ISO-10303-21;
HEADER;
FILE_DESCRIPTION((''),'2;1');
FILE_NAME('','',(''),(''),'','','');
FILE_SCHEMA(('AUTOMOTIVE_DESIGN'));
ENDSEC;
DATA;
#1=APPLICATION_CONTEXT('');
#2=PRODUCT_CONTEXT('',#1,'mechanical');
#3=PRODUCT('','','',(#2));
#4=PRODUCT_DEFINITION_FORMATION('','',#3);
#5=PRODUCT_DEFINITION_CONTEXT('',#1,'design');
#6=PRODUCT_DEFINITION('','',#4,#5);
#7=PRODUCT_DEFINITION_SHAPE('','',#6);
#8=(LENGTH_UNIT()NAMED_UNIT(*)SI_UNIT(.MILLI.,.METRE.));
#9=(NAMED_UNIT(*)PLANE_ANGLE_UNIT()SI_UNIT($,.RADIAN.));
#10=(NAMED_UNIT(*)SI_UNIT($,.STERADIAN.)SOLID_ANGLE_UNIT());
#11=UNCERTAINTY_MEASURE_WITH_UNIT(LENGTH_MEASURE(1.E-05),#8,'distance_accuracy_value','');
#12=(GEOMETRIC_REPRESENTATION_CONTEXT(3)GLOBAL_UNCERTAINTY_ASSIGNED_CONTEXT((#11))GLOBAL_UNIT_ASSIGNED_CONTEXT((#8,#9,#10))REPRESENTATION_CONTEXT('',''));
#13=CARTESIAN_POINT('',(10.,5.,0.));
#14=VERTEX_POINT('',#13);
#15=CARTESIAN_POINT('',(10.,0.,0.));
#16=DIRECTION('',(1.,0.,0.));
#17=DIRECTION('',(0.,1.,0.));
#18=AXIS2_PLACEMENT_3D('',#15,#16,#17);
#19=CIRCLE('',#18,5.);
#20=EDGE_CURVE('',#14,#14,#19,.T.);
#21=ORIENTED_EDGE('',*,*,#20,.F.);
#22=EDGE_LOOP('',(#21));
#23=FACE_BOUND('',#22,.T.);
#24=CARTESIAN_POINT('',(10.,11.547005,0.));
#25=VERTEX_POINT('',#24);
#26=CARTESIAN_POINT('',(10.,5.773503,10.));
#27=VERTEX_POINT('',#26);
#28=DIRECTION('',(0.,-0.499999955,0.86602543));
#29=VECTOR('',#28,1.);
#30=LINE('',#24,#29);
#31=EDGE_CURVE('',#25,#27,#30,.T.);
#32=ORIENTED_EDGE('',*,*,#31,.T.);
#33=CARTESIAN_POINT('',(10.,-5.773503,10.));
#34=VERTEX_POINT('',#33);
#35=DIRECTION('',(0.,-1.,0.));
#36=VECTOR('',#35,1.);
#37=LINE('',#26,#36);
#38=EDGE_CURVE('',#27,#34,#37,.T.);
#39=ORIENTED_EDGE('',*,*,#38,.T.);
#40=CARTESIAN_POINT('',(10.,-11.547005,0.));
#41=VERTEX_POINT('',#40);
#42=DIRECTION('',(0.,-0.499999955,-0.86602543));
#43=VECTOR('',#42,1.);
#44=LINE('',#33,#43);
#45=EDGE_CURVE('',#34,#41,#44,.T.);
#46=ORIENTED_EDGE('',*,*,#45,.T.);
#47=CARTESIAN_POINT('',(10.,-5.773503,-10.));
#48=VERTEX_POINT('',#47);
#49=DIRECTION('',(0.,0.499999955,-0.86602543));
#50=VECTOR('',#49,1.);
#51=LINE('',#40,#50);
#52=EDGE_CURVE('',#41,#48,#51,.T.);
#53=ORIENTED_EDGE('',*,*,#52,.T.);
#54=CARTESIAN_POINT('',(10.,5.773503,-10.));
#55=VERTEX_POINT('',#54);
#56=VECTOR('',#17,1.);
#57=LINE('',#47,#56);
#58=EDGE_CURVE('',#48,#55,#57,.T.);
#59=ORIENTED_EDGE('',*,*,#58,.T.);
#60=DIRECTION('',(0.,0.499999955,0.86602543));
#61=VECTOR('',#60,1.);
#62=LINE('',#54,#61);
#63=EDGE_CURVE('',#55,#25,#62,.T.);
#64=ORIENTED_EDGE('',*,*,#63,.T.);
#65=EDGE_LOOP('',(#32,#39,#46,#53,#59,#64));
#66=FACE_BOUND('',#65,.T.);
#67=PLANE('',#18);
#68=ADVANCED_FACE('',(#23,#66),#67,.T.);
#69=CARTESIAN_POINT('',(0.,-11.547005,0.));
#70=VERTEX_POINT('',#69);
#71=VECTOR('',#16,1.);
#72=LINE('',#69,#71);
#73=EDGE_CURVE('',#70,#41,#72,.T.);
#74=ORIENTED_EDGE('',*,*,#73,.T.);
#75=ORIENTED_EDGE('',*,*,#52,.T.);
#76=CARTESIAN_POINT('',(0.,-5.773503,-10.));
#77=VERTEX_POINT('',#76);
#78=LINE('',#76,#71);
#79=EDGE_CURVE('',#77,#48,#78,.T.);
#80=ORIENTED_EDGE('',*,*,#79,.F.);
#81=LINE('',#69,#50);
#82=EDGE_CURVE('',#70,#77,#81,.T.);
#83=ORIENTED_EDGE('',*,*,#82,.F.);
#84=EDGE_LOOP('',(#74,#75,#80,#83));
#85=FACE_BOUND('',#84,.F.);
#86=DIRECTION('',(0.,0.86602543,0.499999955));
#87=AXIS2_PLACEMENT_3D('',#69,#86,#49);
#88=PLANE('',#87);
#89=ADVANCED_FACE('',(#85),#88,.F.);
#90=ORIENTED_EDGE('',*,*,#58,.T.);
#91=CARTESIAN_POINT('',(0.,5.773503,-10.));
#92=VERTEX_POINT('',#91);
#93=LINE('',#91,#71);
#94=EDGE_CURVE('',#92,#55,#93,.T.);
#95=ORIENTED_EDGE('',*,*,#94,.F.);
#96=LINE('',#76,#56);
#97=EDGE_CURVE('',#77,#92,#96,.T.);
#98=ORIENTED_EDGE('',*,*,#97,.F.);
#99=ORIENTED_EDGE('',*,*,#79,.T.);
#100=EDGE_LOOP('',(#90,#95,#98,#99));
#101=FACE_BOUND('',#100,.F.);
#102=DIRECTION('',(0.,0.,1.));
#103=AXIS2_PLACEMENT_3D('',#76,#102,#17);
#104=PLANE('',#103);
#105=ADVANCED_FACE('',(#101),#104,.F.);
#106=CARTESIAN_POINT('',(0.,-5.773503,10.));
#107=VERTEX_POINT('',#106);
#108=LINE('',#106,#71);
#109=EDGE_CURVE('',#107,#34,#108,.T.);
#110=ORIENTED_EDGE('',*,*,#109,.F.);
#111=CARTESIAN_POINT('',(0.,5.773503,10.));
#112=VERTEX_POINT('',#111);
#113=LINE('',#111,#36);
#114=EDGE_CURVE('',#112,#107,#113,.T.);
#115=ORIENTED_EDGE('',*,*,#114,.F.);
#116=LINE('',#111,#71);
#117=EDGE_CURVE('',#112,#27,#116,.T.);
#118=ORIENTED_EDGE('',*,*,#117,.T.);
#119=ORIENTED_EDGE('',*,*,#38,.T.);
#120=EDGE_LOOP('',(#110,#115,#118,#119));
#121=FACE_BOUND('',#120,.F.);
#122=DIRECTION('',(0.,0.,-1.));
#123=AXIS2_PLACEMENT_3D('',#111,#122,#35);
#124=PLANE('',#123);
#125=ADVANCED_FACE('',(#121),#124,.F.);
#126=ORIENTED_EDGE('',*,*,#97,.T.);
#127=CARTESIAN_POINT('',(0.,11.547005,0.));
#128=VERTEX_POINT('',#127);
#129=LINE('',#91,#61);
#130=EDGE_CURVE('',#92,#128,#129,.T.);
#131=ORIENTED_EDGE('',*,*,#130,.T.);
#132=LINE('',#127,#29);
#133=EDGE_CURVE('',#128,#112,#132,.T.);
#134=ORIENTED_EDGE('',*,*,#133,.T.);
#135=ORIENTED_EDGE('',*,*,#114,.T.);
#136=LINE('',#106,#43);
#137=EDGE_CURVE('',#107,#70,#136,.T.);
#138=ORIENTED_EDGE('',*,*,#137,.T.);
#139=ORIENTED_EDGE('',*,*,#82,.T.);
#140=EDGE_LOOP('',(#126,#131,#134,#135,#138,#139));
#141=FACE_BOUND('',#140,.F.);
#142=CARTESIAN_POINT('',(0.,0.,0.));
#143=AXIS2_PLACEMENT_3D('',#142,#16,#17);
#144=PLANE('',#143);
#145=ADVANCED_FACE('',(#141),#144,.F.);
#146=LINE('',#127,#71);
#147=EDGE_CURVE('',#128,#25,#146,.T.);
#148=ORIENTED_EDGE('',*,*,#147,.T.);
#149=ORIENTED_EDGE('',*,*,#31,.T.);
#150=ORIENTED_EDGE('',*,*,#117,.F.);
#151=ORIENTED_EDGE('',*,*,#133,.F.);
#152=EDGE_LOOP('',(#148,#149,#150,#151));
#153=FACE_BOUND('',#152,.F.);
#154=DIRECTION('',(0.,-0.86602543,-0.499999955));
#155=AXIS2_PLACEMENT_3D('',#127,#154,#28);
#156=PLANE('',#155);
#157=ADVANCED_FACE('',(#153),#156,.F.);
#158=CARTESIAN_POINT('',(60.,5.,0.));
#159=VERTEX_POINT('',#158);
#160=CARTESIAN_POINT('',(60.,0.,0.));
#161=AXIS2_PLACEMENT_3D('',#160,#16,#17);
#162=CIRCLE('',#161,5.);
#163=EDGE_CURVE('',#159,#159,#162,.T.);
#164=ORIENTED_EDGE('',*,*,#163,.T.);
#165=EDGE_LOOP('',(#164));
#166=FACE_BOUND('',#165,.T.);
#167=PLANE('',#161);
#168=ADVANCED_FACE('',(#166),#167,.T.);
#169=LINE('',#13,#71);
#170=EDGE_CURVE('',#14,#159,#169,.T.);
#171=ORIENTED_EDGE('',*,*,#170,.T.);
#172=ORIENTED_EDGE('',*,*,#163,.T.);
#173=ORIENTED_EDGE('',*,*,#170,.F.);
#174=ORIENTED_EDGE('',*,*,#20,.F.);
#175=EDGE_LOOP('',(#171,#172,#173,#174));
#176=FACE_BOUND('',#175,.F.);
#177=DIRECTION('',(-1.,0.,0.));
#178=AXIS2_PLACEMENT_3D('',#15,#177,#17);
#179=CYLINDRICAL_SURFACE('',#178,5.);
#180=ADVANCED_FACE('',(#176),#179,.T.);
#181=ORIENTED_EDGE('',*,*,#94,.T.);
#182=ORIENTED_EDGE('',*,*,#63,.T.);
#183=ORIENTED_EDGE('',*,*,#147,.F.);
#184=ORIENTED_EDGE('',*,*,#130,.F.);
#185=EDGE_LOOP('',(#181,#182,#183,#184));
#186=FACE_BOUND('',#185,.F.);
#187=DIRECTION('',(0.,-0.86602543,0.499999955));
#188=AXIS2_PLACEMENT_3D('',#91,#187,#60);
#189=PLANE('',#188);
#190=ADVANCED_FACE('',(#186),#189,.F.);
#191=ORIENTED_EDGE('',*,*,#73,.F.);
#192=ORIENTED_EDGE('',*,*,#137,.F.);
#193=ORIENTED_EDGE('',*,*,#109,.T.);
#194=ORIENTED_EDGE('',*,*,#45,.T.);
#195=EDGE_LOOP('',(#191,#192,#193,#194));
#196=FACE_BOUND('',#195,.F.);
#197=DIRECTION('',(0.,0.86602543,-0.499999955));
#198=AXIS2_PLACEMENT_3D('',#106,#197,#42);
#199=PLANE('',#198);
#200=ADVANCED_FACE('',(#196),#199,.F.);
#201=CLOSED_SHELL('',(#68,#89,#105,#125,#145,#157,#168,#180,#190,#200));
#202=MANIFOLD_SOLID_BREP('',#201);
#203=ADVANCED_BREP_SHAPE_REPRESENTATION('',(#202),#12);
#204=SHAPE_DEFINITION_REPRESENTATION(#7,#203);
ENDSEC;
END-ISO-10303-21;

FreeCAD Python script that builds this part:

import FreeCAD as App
import Part
import Sketcher

V = App.Vector
Q = App.Units.Quantity


def add_polygon(sketch, points):
    """Adds a closed chain of lines whose ends are joined by coincident constraints."""
    first, n = sketch.GeometryCount, len(points)
    for a, b in zip(points, points[1:] + points[:1]):
        sketch.addGeometry(Part.LineSegment(App.Vector(*a, 0), App.Vector(*b, 0)), False)
    for i in range(n):
        sketch.addConstraint(Sketcher.Constraint("Coincident", first + i, 2, first + (i + 1) % n, 1))

doc = App.newDocument("Part")
body = doc.addObject("PartDesign::Body", "Body")

# Sketch on YZ plane
sketch1 = doc.addObject("Sketcher::SketchObject", "Sketch")
body.addObject(sketch1)
sketch1.AttachmentSupport = (doc.YZ_Plane, [""])
sketch1.MapMode = "FlatFace"
add_polygon(sketch1, [(6, 10), (-6, 10), (-12, 0), (-6, -10), (6, -10), (12, 0)])  # lines 0-5
sketch1.addConstraint([
    Sketcher.Constraint("Horizontal", 0),
    Sketcher.Constraint("Horizontal", 3),
    Sketcher.Constraint("Symmetric", 0, 2, 3, 2, -1, 1),
    Sketcher.Constraint("Symmetric", 1, 2, 4, 2, -1, 1),
    Sketcher.Constraint("PointOnObject", 1, 2, -1),
    Sketcher.Constraint("Parallel", 2, 5),
    Sketcher.Constraint("Vertical", 0, 2, 2, 2),
    Sketcher.Constraint("Angle", 1, Q("-119.999997 deg")),
    Sketcher.Constraint("DistanceY", -1, 1, 0, 2, 10.0),
    Sketcher.Constraint("DistanceX", 0, 2, 0, 1, 11.547006),
])
pad1 = doc.addObject("PartDesign::Pad", "Pad")
body.addObject(pad1)
pad1.Profile = sketch1
pad1.Length = 10

# Sketch on YZ plane
sketch2 = doc.addObject("Sketcher::SketchObject", "Sketch001")
body.addObject(sketch2)
sketch2.AttachmentSupport = (doc.YZ_Plane, [""])
sketch2.MapMode = "FlatFace"
sketch2.AttachmentOffset = App.Placement(V(0, 0, 10), App.Rotation())
sketch2.addGeometry(Part.Circle(V(0, 0, 0), V(0, 0, 1), 5), False)
sketch2.addConstraint([
    Sketcher.Constraint("Coincident", 0, 3, -1, 1),
    Sketcher.Constraint("Diameter", 0, 10.0),
])
pad2 = doc.addObject("PartDesign::Pad", "Pad001")
body.addObject(pad2)
pad2.Profile = sketch2
pad2.Length = 50

doc.recompute()
